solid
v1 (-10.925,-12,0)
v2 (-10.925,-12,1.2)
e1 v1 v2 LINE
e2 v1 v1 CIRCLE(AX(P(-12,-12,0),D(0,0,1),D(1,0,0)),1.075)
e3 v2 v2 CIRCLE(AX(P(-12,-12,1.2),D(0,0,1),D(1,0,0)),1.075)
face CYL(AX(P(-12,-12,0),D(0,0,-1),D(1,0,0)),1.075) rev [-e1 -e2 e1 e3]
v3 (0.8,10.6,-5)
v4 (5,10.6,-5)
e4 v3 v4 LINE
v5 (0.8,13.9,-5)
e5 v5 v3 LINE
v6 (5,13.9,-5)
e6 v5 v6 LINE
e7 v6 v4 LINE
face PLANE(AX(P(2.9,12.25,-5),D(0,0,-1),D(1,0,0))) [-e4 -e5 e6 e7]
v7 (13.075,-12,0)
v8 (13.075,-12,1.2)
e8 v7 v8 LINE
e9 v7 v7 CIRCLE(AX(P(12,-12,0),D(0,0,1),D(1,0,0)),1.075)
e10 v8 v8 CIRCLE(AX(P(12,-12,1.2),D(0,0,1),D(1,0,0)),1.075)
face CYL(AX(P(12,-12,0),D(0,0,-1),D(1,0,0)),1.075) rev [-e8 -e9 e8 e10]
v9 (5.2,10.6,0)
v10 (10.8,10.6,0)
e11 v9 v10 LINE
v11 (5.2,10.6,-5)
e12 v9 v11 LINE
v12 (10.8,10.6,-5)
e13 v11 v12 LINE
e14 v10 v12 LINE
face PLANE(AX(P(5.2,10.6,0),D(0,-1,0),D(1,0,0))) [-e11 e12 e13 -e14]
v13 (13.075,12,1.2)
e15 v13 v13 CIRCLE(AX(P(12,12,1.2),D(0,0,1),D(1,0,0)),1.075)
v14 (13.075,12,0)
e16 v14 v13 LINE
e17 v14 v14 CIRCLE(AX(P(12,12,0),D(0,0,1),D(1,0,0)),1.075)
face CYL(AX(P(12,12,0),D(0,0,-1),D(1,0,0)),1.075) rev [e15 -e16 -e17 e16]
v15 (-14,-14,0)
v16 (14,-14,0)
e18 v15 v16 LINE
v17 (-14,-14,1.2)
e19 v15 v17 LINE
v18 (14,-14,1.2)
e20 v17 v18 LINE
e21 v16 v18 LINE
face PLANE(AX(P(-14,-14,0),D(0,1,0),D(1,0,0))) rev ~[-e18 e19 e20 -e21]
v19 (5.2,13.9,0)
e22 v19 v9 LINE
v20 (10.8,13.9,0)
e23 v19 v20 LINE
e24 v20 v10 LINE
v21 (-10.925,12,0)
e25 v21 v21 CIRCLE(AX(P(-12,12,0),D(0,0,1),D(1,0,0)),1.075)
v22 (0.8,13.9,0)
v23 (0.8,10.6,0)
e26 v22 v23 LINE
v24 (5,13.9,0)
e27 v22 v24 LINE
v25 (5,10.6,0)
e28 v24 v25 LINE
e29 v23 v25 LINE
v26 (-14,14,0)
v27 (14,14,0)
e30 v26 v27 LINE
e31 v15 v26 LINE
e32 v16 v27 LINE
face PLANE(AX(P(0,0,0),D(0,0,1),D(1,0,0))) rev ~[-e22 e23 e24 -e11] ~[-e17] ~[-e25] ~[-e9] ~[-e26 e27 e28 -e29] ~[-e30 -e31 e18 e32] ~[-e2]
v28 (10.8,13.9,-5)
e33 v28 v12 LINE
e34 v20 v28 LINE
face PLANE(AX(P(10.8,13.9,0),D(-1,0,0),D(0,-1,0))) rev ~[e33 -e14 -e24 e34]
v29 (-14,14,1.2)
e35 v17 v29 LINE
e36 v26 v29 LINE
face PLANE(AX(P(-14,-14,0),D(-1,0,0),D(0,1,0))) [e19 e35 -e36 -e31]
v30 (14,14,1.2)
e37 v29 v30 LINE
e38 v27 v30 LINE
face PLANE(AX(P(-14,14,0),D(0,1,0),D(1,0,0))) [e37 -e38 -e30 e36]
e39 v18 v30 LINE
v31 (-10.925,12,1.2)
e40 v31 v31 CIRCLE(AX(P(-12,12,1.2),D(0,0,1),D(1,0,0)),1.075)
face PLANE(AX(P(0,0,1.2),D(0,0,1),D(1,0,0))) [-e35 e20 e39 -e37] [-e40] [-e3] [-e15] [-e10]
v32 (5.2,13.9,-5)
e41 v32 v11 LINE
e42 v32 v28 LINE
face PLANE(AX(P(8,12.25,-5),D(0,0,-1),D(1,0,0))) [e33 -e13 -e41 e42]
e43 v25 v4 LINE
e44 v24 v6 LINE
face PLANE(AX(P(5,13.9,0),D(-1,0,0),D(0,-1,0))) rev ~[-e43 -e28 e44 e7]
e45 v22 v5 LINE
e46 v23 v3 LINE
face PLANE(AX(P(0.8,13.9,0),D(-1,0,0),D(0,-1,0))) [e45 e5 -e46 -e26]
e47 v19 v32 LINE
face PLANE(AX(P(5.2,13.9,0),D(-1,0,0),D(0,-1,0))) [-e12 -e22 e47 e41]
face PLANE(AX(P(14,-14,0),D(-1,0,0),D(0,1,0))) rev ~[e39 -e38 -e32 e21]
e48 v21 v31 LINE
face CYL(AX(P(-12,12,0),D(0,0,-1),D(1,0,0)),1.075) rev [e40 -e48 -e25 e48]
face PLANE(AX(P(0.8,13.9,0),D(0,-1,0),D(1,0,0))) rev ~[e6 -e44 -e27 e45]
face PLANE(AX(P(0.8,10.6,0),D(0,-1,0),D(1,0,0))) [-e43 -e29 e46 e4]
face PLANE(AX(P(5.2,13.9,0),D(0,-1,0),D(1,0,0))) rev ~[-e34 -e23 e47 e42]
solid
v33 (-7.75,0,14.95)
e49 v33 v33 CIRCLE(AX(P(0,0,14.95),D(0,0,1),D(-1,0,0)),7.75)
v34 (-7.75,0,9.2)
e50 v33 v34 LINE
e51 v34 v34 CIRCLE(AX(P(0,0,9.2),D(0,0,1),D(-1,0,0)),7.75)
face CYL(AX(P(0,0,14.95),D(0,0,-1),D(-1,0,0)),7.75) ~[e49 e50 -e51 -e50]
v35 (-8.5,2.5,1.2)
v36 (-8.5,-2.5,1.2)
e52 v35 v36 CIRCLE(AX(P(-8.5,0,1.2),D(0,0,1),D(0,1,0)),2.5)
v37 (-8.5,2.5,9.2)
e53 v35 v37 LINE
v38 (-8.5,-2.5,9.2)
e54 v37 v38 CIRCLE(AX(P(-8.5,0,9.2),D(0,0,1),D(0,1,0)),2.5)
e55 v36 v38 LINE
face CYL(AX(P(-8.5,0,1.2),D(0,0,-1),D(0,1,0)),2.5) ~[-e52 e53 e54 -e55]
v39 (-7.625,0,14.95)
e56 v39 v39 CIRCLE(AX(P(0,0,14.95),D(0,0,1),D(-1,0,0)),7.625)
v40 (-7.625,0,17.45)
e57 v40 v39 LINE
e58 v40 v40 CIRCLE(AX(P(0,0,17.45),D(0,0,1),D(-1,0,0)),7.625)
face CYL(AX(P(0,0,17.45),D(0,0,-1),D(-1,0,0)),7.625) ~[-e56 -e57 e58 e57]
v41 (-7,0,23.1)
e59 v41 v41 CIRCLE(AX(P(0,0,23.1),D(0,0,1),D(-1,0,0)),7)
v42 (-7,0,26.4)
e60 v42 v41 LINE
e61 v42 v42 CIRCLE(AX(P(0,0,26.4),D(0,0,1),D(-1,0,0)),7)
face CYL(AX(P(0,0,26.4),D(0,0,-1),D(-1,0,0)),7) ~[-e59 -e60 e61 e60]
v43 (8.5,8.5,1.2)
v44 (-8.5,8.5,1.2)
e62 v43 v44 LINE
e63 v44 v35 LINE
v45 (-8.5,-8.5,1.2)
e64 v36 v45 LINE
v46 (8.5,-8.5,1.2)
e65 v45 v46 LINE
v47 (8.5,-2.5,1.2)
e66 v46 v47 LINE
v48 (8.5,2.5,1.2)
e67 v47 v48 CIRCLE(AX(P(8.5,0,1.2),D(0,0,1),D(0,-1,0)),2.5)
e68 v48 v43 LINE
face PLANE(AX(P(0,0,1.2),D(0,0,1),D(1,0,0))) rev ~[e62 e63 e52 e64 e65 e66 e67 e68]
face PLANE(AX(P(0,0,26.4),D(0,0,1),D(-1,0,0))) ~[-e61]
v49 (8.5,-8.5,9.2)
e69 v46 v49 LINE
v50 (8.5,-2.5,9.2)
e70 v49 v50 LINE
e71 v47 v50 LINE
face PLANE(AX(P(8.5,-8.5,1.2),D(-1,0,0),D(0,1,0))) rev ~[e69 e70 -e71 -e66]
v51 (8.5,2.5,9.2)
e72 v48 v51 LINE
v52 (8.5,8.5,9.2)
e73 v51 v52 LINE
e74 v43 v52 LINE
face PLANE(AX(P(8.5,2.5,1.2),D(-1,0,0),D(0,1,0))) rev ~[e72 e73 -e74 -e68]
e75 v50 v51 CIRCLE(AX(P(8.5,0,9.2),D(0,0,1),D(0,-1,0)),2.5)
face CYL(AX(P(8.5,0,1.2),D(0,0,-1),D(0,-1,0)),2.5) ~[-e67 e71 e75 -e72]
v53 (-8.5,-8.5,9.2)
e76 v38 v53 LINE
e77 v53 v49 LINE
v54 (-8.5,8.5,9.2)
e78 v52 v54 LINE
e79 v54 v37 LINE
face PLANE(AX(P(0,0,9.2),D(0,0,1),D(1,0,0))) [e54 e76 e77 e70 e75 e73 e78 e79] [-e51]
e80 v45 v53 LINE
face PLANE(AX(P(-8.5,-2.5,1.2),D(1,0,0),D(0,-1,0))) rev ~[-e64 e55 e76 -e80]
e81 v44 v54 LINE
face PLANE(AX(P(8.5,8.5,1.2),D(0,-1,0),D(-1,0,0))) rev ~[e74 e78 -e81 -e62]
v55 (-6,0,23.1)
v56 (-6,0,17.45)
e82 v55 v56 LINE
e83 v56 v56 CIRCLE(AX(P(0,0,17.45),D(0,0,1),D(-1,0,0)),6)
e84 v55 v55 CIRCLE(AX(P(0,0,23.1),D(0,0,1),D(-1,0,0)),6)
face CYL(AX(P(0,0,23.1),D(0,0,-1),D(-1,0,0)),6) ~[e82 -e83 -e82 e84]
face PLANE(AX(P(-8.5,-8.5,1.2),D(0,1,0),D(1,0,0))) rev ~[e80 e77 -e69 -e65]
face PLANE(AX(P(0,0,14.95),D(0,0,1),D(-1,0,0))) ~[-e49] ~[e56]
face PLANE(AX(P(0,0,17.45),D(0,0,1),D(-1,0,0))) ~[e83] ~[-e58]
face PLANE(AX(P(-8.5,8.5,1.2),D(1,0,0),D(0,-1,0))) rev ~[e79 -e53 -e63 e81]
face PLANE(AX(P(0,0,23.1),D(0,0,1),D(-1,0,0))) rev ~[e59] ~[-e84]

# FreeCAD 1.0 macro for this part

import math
import FreeCAD as App
import Part
import Sketcher

V = App.Vector


def add_polygon(sketch, points):
    """Adds a closed chain of lines whose ends are joined by coincident constraints."""
    first, n = sketch.GeometryCount, len(points)
    for a, b in zip(points, points[1:] + points[:1]):
        sketch.addGeometry(Part.LineSegment(App.Vector(*a, 0), App.Vector(*b, 0)), False)
    for i in range(n):
        sketch.addConstraint(Sketcher.Constraint("Coincident", first + i, 2, first + (i + 1) % n, 1))

doc = App.newDocument("Part")
body = doc.addObject("PartDesign::Body", "Body")

# Sketch on XY plane
sketch1 = doc.addObject("Sketcher::SketchObject", "Sketch")
body.addObject(sketch1)
sketch1.AttachmentSupport = (doc.XY_Plane, [""])
sketch1.MapMode = "FlatFace"
add_polygon(sketch1, [(-14, 14), (-14, -14), (14, -14), (14, 14)])  # lines 0-3
sketch1.addGeometry(Part.Circle(V(-12, -12, 0), V(0, 0, 1), 1.075), False)  # 4
sketch1.addGeometry(Part.Circle(V(12, -12, 0), V(0, 0, 1), 1.075), False)  # 5
sketch1.addGeometry(Part.Circle(V(-12, 12, 0), V(0, 0, 1), 1.075), False)  # 6
sketch1.addGeometry(Part.Circle(V(12, 12, 0), V(0, 0, 1), 1.075), False)  # 7
sketch1.addConstraint([
    Sketcher.Constraint("Vertical", 0),
    Sketcher.Constraint("Horizontal", 1),
    Sketcher.Constraint("Vertical", 2),
    Sketcher.Constraint("Horizontal", 3),
    Sketcher.Constraint("Equal", 4, 5),
    Sketcher.Constraint("Equal", 5, 6),
    Sketcher.Constraint("Equal", 6, 7),
    Sketcher.Constraint("Symmetric", 5, 3, 6, 3, -1, 1),
    Sketcher.Constraint("Symmetric", 4, 3, 7, 3, -1, 1),
    Sketcher.Constraint("Symmetric", 0, 2, 2, 2, -1, 1),
    Sketcher.Constraint("Symmetric", 4, 3, 5, 3, -2),
    Sketcher.Constraint("Equal", 3, 0),
    Sketcher.Constraint("Diameter", 4, 2.15),
    Sketcher.Constraint("DistanceX", 1, 1, 1, 2, 28.0),
    Sketcher.Constraint("DistanceX", 4, 3, -1, 1, 12.0),
    Sketcher.Constraint("DistanceY", 4, 3, -1, 1, 12.0),
])
pad1 = doc.addObject("PartDesign::Pad", "Pad")
body.addObject(pad1)
pad1.Profile = sketch1
pad1.Length = 1.2

# Sketch on XY plane
sketch2 = doc.addObject("Sketcher::SketchObject", "Sketch001")
body.addObject(sketch2)
sketch2.AttachmentSupport = (doc.XY_Plane, [""])
sketch2.MapMode = "FlatFace"
add_polygon(sketch2, [(0.8, 10.6), (0.8, 13.9), (5, 13.9), (5, 10.6)])  # lines 0-3
add_polygon(sketch2, [(5.2, 10.6), (5.2, 13.9), (10.8, 13.9), (10.8, 10.6)])  # lines 4-7
sketch2.addConstraint([
    Sketcher.Constraint("Vertical", 0),
    Sketcher.Constraint("Horizontal", 1),
    Sketcher.Constraint("Vertical", 2),
    Sketcher.Constraint("Horizontal", 3),
    Sketcher.Constraint("Vertical", 4),
    Sketcher.Constraint("Horizontal", 5),
    Sketcher.Constraint("Vertical", 6),
    Sketcher.Constraint("Horizontal", 7),
    Sketcher.Constraint("Horizontal", 1, 2, 4, 2),
    Sketcher.Constraint("Horizontal", 3, 2, 6, 2),
    Sketcher.Constraint("DistanceX", 1, 1, 1, 2, 4.2),
    Sketcher.Constraint("DistanceX", 5, 1, 5, 2, 5.6),
    Sketcher.Constraint("DistanceY", 0, 1, 0, 2, 3.3),
    Sketcher.Constraint("DistanceX", -1, 1, 1, 2, 5.0),
    Sketcher.Constraint("DistanceX", 0, 2, 5, 2, 10.0),
    Sketcher.Constraint("DistanceY", -1, 1, 0, 2, 13.9),
])
pad2 = doc.addObject("PartDesign::Pad", "Pad001")
body.addObject(pad2)
pad2.Profile = sketch2
pad2.Length = 5
pad2.Reversed = True
body2 = doc.addObject("PartDesign::Body", "Body001")

# Sketch on XY plane
sketch3 = doc.addObject("Sketcher::SketchObject", "Sketch002")
body2.addObject(sketch3)
sketch3.AttachmentSupport = (doc.getObject("XY_Plane001"), [""])
sketch3.MapMode = "FlatFace"
sketch3.AttachmentOffset = App.Placement(V(0, 0, 1.2), App.Rotation())
sketch3.addGeometry([
    Part.LineSegment(V(8.5, 8.5, 0), V(-8.5, 8.5, 0)),  # 0
    Part.LineSegment(V(-8.5, 8.5, 0), V(-8.5, 2.5, 0)),  # 1
    Part.ArcOfCircle(Part.Circle(V(-8.5, 0, 0), V(0, 0, 1), 2.5), math.radians(90), math.radians(270)),  # 2
    Part.LineSegment(V(-8.5, -2.5, 0), V(-8.5, -8.5, 0)),  # 3
    Part.LineSegment(V(-8.5, -8.5, 0), V(8.5, -8.5, 0)),  # 4
    Part.LineSegment(V(8.5, -8.5, 0), V(8.5, -2.5, 0)),  # 5
    Part.ArcOfCircle(Part.Circle(V(8.5, 0, 0), V(0, 0, 1), 2.5), math.radians(-90), math.radians(90)),  # 6
    Part.LineSegment(V(8.5, 2.5, 0), V(8.5, 8.5, 0)),  # 7
], False)
sketch3.addConstraint([
    Sketcher.Constraint("Coincident", 0, 2, 1, 1),
    Sketcher.Constraint("Coincident", 1, 2, 2, 1),
    Sketcher.Constraint("Coincident", 2, 2, 3, 1),
    Sketcher.Constraint("Coincident", 3, 2, 4, 1),
    Sketcher.Constraint("Coincident", 4, 2, 5, 1),
    Sketcher.Constraint("Coincident", 5, 2, 6, 1),
    Sketcher.Constraint("Coincident", 6, 2, 7, 1),
    Sketcher.Constraint("Coincident", 7, 2, 0, 1),
    Sketcher.Constraint("Horizontal", 0),
    Sketcher.Constraint("Vertical", 1),
    Sketcher.Constraint("Vertical", 3),
    Sketcher.Constraint("Horizontal", 4),
    Sketcher.Constraint("Vertical", 5),
    Sketcher.Constraint("Vertical", 7),
    Sketcher.Constraint("Equal", 2, 6),
    Sketcher.Constraint("Symmetric", 2, 3, 6, 3, -1, 1),
    Sketcher.Constraint("Symmetric", 0, 2, 4, 2, -1, 1),
    Sketcher.Constraint("Symmetric", 2, 2, 5, 2, -2),
    Sketcher.Constraint("Vertical", 2, 3, 0, 2),
    Sketcher.Constraint("Vertical", 5, 2, 6, 2),
    Sketcher.Constraint("Radius", 2, 2.5),
    Sketcher.Constraint("DistanceX", 0, 2, 0, 1, 17.0),
    Sketcher.Constraint("DistanceY", 1, 2, 1, 1, 6.0),
])
pad3 = doc.addObject("PartDesign::Pad", "Pad002")
body2.addObject(pad3)
pad3.Profile = sketch3
pad3.Length = 8

# Sketch on XZ plane
sketch4 = doc.addObject("Sketcher::SketchObject", "Sketch003")
body2.addObject(sketch4)
sketch4.AttachmentSupport = (doc.getObject("XZ_Plane001"), [""])
sketch4.MapMode = "FlatFace"
add_polygon(sketch4, [(0, 9.2), (0, 26.4), (-7, 26.4), (-7, 23.1), (-6, 23.1), (-6, 17.45), (-7.625, 17.45), (-7.625, 14.95), (-7.75, 14.95), (-7.75, 9.2)])  # lines 0-9
sketch4.addConstraint([
    Sketcher.Constraint("Vertical", 0),
    Sketcher.Constraint("Horizontal", 1),
    Sketcher.Constraint("Vertical", 2),
    Sketcher.Constraint("Horizontal", 3),
    Sketcher.Constraint("Vertical", 4),
    Sketcher.Constraint("Horizontal", 5),
    Sketcher.Constraint("Vertical", 6),
    Sketcher.Constraint("Horizontal", 7),
    Sketcher.Constraint("Vertical", 8),
    Sketcher.Constraint("Horizontal", 9),
    Sketcher.Constraint("PointOnObject", 0, 2, -2),
    Sketcher.Constraint("DistanceX", 1, 2, 1, 1, 7.0),
    Sketcher.Constraint("DistanceX", 3, 1, 3, 2, 1.0),
    Sketcher.Constraint("DistanceY", 0, 1, 0, 2, 17.2),
    Sketcher.Constraint("DistanceY", 2, 2, 2, 1, 3.3),
    Sketcher.Constraint("DistanceY", 6, 2, 6, 1, 2.5),
    Sketcher.Constraint("DistanceX", 9, 1, 9, 2, 7.75),
    Sketcher.Constraint("DistanceY", 4, 2, 4, 1, 5.65),
    Sketcher.Constraint("DistanceY", -1, 1, 0, 2, 26.4),
    Sketcher.Constraint("DistanceX", 5, 2, 5, 1, 1.625),
])
revolution = doc.addObject("PartDesign::Revolution", "Revolution")
body2.addObject(revolution)
revolution.Profile = sketch4
revolution.ReferenceAxis = (sketch4, ["V_Axis"])
revolution.Angle = 360

doc.recompute()
